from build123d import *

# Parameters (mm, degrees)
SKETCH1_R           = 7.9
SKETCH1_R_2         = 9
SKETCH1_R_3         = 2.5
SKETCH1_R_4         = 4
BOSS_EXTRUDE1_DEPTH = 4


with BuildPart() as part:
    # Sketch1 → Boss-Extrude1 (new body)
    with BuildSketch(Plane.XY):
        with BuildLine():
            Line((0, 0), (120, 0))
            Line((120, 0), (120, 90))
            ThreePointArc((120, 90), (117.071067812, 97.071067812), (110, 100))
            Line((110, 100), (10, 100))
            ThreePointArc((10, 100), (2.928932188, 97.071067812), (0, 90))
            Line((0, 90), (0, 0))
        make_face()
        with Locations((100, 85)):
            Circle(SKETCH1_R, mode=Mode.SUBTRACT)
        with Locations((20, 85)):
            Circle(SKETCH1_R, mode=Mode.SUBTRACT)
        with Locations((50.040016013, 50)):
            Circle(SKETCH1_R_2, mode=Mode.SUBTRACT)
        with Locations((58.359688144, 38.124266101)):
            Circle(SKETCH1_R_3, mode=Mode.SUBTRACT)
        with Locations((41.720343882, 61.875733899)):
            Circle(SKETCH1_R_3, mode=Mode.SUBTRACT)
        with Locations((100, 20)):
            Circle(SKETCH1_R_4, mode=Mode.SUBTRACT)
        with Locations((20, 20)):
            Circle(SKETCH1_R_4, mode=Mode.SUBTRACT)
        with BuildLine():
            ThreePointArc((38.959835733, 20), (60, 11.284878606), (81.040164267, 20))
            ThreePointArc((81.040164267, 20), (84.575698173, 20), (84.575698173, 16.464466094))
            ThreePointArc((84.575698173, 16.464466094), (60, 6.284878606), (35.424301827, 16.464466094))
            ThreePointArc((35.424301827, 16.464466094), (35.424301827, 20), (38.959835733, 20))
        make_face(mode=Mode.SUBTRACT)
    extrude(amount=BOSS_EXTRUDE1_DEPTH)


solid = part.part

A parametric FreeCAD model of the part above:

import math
import FreeCAD as App
import Part
import Sketcher

doc = App.newDocument("Part")
body = doc.addObject("PartDesign::Body", "Body")

# Sketch on XY plane
sketch1 = body.newObject("Sketcher::SketchObject", "Sketch")
sketch1.AttachmentSupport = (doc.getObject("XY_Plane"), [""])
sketch1.MapMode = "FlatFace"
sketch1.addGeometry([
    Part.LineSegment(App.Vector(0, 0, 0), App.Vector(120, 0, 0)),  # 0
    Part.LineSegment(App.Vector(120, 0, 0), App.Vector(120, 90, 0)),  # 1
    Part.ArcOfCircle(Part.Circle(App.Vector(110, 90, 0), App.Vector(0, 0, 1), 10), math.radians(0), math.radians(90)),  # 2
    Part.LineSegment(App.Vector(110, 100, 0), App.Vector(10, 100, 0)),  # 3
    Part.ArcOfCircle(Part.Circle(App.Vector(10, 90, 0), App.Vector(0, 0, 1), 10), math.radians(90), math.radians(180)),  # 4
    Part.LineSegment(App.Vector(0, 90, 0), App.Vector(0, 0, 0)),  # 5
    Part.Circle(App.Vector(20, 20, 0), App.Vector(0, 0, 1), 4),  # 6
    Part.ArcOfCircle(Part.Circle(App.Vector(37.192069, 18.232233, 0), App.Vector(0, 0, 1), 2.5), math.radians(45), math.radians(225)),  # 7
    Part.ArcOfCircle(Part.Circle(App.Vector(60, 41.040164, 0), App.Vector(0, 0, 1), 29.755286), math.radians(-135), math.radians(-45)),  # 8
    Part.ArcOfCircle(Part.Circle(App.Vector(82.807931, 18.232233, 0), App.Vector(0, 0, 1), 2.5), math.radians(-45), math.radians(135)),  # 9
    Part.ArcOfCircle(Part.Circle(App.Vector(60, 41.040164, 0), App.Vector(0, 0, 1), 34.755286), math.radians(-135), math.radians(-45)),  # 10
    Part.Circle(App.Vector(58.359688, 38.124266, 0), App.Vector(0, 0, 1), 2.5),  # 11
    Part.Circle(App.Vector(100, 20, 0), App.Vector(0, 0, 1), 4),  # 12
    Part.Circle(App.Vector(50.040016, 50, 0), App.Vector(0, 0, 1), 9),  # 13
    Part.Circle(App.Vector(41.720344, 61.875734, 0), App.Vector(0, 0, 1), 2.5),  # 14
    Part.Circle(App.Vector(20, 85, 0), App.Vector(0, 0, 1), 7.9),  # 15
    Part.Circle(App.Vector(100, 85, 0), App.Vector(0, 0, 1), 7.9),  # 16
], False)
sketch1.addConstraint([
    Sketcher.Constraint("Coincident", 0, 2, 1, 1),
    Sketcher.Constraint("Tangent", 1, 2, 2, 1),
    Sketcher.Constraint("Tangent", 2, 2, 3, 1),
    Sketcher.Constraint("Tangent", 3, 2, 4, 1),
    Sketcher.Constraint("Tangent", 4, 2, 5, 1),
    Sketcher.Constraint("Coincident", 5, 2, 0, 1),
    Sketcher.Constraint("Tangent", 7, 1, 8, 1),
    Sketcher.Constraint("Tangent", 8, 2, 9, 2),
    Sketcher.Constraint("Tangent", 9, 1, 10, 2),
    Sketcher.Constraint("Tangent", 10, 1, 7, 2),
    Sketcher.Constraint("Horizontal", 0),
    Sketcher.Constraint("Vertical", 1),
    Sketcher.Constraint("Horizontal", 3),
    Sketcher.Constraint("Vertical", 5),
    Sketcher.Constraint("Coincident", 5, 2, -1, 1),
    Sketcher.Constraint("Coincident", 10, 3, 8, 3),
    Sketcher.Constraint("Equal", 2, 4),
    Sketcher.Constraint("Equal", 9, 11),
    Sketcher.Constraint("Equal", 6, 12),
    Sketcher.Constraint("Equal", 11, 14),
    Sketcher.Constraint("Equal", 15, 16),
    Sketcher.Constraint("Horizontal", 7, 3, 9, 3),
    Sketcher.Constraint("Horizontal", 6, 3, 12, 3),
    Sketcher.Constraint("Horizontal", 15, 3, 16, 3),
    Sketcher.Constraint("Horizontal", 12, 3, 7, 1),
    Sketcher.Constraint("Vertical", 6, 3, 15, 3),
    Sketcher.Constraint("Vertical", 12, 3, 16, 3),
    Sketcher.Constraint("Diameter", 6, 8.0),
    Sketcher.Constraint("Diameter", 11, 5.0),
    Sketcher.Constraint("Diameter", 13, 18.0),
    Sketcher.Constraint("Radius", 2, 10.0),
    Sketcher.Constraint("Diameter", 15, 15.8),
    Sketcher.Constraint("DistanceX", 0, 1, 0, 2, 120.0),
    Sketcher.Constraint("DistanceY", 1, 1, 1, 2, 90.0),
    Sketcher.Constraint("DistanceX", -1, 1, 6, 3, 20.0),
    Sketcher.Constraint("DistanceY", -1, 1, 6, 3, 20.0),
    Sketcher.Constraint("DistanceX", -1, 1, 8, 3, 60.0),
    Sketcher.Constraint("DistanceX", -1, 1, 12, 3, 100.0),
    Sketcher.Constraint("DistanceY", -1, 1, 13, 3, 50.0),
    Sketcher.Constraint("DistanceY", -1, 1, 15, 3, 85.0),
    Sketcher.Constraint("Radius", 8, 29.755286),
    Sketcher.Constraint("DistanceX", -1, 1, 9, 1, 84.575698),
    Sketcher.Constraint("DistanceY", 11, 3, 8, 3, 2.915898),
    Sketcher.Constraint("DistanceX", -1, 1, 11, 3, 58.359688),
    Sketcher.Constraint("DistanceY", 8, 3, 14, 3, 20.83557),
    Sketcher.Constraint("DistanceX", -1, 1, 13, 3, 50.040016),
    Sketcher.Constraint("DistanceX", -1, 1, 14, 3, 41.720344),
])
pad1 = body.newObject("PartDesign::Pad", "Pad")
pad1.Profile = sketch1
pad1.Length = 4

doc.recompute()
